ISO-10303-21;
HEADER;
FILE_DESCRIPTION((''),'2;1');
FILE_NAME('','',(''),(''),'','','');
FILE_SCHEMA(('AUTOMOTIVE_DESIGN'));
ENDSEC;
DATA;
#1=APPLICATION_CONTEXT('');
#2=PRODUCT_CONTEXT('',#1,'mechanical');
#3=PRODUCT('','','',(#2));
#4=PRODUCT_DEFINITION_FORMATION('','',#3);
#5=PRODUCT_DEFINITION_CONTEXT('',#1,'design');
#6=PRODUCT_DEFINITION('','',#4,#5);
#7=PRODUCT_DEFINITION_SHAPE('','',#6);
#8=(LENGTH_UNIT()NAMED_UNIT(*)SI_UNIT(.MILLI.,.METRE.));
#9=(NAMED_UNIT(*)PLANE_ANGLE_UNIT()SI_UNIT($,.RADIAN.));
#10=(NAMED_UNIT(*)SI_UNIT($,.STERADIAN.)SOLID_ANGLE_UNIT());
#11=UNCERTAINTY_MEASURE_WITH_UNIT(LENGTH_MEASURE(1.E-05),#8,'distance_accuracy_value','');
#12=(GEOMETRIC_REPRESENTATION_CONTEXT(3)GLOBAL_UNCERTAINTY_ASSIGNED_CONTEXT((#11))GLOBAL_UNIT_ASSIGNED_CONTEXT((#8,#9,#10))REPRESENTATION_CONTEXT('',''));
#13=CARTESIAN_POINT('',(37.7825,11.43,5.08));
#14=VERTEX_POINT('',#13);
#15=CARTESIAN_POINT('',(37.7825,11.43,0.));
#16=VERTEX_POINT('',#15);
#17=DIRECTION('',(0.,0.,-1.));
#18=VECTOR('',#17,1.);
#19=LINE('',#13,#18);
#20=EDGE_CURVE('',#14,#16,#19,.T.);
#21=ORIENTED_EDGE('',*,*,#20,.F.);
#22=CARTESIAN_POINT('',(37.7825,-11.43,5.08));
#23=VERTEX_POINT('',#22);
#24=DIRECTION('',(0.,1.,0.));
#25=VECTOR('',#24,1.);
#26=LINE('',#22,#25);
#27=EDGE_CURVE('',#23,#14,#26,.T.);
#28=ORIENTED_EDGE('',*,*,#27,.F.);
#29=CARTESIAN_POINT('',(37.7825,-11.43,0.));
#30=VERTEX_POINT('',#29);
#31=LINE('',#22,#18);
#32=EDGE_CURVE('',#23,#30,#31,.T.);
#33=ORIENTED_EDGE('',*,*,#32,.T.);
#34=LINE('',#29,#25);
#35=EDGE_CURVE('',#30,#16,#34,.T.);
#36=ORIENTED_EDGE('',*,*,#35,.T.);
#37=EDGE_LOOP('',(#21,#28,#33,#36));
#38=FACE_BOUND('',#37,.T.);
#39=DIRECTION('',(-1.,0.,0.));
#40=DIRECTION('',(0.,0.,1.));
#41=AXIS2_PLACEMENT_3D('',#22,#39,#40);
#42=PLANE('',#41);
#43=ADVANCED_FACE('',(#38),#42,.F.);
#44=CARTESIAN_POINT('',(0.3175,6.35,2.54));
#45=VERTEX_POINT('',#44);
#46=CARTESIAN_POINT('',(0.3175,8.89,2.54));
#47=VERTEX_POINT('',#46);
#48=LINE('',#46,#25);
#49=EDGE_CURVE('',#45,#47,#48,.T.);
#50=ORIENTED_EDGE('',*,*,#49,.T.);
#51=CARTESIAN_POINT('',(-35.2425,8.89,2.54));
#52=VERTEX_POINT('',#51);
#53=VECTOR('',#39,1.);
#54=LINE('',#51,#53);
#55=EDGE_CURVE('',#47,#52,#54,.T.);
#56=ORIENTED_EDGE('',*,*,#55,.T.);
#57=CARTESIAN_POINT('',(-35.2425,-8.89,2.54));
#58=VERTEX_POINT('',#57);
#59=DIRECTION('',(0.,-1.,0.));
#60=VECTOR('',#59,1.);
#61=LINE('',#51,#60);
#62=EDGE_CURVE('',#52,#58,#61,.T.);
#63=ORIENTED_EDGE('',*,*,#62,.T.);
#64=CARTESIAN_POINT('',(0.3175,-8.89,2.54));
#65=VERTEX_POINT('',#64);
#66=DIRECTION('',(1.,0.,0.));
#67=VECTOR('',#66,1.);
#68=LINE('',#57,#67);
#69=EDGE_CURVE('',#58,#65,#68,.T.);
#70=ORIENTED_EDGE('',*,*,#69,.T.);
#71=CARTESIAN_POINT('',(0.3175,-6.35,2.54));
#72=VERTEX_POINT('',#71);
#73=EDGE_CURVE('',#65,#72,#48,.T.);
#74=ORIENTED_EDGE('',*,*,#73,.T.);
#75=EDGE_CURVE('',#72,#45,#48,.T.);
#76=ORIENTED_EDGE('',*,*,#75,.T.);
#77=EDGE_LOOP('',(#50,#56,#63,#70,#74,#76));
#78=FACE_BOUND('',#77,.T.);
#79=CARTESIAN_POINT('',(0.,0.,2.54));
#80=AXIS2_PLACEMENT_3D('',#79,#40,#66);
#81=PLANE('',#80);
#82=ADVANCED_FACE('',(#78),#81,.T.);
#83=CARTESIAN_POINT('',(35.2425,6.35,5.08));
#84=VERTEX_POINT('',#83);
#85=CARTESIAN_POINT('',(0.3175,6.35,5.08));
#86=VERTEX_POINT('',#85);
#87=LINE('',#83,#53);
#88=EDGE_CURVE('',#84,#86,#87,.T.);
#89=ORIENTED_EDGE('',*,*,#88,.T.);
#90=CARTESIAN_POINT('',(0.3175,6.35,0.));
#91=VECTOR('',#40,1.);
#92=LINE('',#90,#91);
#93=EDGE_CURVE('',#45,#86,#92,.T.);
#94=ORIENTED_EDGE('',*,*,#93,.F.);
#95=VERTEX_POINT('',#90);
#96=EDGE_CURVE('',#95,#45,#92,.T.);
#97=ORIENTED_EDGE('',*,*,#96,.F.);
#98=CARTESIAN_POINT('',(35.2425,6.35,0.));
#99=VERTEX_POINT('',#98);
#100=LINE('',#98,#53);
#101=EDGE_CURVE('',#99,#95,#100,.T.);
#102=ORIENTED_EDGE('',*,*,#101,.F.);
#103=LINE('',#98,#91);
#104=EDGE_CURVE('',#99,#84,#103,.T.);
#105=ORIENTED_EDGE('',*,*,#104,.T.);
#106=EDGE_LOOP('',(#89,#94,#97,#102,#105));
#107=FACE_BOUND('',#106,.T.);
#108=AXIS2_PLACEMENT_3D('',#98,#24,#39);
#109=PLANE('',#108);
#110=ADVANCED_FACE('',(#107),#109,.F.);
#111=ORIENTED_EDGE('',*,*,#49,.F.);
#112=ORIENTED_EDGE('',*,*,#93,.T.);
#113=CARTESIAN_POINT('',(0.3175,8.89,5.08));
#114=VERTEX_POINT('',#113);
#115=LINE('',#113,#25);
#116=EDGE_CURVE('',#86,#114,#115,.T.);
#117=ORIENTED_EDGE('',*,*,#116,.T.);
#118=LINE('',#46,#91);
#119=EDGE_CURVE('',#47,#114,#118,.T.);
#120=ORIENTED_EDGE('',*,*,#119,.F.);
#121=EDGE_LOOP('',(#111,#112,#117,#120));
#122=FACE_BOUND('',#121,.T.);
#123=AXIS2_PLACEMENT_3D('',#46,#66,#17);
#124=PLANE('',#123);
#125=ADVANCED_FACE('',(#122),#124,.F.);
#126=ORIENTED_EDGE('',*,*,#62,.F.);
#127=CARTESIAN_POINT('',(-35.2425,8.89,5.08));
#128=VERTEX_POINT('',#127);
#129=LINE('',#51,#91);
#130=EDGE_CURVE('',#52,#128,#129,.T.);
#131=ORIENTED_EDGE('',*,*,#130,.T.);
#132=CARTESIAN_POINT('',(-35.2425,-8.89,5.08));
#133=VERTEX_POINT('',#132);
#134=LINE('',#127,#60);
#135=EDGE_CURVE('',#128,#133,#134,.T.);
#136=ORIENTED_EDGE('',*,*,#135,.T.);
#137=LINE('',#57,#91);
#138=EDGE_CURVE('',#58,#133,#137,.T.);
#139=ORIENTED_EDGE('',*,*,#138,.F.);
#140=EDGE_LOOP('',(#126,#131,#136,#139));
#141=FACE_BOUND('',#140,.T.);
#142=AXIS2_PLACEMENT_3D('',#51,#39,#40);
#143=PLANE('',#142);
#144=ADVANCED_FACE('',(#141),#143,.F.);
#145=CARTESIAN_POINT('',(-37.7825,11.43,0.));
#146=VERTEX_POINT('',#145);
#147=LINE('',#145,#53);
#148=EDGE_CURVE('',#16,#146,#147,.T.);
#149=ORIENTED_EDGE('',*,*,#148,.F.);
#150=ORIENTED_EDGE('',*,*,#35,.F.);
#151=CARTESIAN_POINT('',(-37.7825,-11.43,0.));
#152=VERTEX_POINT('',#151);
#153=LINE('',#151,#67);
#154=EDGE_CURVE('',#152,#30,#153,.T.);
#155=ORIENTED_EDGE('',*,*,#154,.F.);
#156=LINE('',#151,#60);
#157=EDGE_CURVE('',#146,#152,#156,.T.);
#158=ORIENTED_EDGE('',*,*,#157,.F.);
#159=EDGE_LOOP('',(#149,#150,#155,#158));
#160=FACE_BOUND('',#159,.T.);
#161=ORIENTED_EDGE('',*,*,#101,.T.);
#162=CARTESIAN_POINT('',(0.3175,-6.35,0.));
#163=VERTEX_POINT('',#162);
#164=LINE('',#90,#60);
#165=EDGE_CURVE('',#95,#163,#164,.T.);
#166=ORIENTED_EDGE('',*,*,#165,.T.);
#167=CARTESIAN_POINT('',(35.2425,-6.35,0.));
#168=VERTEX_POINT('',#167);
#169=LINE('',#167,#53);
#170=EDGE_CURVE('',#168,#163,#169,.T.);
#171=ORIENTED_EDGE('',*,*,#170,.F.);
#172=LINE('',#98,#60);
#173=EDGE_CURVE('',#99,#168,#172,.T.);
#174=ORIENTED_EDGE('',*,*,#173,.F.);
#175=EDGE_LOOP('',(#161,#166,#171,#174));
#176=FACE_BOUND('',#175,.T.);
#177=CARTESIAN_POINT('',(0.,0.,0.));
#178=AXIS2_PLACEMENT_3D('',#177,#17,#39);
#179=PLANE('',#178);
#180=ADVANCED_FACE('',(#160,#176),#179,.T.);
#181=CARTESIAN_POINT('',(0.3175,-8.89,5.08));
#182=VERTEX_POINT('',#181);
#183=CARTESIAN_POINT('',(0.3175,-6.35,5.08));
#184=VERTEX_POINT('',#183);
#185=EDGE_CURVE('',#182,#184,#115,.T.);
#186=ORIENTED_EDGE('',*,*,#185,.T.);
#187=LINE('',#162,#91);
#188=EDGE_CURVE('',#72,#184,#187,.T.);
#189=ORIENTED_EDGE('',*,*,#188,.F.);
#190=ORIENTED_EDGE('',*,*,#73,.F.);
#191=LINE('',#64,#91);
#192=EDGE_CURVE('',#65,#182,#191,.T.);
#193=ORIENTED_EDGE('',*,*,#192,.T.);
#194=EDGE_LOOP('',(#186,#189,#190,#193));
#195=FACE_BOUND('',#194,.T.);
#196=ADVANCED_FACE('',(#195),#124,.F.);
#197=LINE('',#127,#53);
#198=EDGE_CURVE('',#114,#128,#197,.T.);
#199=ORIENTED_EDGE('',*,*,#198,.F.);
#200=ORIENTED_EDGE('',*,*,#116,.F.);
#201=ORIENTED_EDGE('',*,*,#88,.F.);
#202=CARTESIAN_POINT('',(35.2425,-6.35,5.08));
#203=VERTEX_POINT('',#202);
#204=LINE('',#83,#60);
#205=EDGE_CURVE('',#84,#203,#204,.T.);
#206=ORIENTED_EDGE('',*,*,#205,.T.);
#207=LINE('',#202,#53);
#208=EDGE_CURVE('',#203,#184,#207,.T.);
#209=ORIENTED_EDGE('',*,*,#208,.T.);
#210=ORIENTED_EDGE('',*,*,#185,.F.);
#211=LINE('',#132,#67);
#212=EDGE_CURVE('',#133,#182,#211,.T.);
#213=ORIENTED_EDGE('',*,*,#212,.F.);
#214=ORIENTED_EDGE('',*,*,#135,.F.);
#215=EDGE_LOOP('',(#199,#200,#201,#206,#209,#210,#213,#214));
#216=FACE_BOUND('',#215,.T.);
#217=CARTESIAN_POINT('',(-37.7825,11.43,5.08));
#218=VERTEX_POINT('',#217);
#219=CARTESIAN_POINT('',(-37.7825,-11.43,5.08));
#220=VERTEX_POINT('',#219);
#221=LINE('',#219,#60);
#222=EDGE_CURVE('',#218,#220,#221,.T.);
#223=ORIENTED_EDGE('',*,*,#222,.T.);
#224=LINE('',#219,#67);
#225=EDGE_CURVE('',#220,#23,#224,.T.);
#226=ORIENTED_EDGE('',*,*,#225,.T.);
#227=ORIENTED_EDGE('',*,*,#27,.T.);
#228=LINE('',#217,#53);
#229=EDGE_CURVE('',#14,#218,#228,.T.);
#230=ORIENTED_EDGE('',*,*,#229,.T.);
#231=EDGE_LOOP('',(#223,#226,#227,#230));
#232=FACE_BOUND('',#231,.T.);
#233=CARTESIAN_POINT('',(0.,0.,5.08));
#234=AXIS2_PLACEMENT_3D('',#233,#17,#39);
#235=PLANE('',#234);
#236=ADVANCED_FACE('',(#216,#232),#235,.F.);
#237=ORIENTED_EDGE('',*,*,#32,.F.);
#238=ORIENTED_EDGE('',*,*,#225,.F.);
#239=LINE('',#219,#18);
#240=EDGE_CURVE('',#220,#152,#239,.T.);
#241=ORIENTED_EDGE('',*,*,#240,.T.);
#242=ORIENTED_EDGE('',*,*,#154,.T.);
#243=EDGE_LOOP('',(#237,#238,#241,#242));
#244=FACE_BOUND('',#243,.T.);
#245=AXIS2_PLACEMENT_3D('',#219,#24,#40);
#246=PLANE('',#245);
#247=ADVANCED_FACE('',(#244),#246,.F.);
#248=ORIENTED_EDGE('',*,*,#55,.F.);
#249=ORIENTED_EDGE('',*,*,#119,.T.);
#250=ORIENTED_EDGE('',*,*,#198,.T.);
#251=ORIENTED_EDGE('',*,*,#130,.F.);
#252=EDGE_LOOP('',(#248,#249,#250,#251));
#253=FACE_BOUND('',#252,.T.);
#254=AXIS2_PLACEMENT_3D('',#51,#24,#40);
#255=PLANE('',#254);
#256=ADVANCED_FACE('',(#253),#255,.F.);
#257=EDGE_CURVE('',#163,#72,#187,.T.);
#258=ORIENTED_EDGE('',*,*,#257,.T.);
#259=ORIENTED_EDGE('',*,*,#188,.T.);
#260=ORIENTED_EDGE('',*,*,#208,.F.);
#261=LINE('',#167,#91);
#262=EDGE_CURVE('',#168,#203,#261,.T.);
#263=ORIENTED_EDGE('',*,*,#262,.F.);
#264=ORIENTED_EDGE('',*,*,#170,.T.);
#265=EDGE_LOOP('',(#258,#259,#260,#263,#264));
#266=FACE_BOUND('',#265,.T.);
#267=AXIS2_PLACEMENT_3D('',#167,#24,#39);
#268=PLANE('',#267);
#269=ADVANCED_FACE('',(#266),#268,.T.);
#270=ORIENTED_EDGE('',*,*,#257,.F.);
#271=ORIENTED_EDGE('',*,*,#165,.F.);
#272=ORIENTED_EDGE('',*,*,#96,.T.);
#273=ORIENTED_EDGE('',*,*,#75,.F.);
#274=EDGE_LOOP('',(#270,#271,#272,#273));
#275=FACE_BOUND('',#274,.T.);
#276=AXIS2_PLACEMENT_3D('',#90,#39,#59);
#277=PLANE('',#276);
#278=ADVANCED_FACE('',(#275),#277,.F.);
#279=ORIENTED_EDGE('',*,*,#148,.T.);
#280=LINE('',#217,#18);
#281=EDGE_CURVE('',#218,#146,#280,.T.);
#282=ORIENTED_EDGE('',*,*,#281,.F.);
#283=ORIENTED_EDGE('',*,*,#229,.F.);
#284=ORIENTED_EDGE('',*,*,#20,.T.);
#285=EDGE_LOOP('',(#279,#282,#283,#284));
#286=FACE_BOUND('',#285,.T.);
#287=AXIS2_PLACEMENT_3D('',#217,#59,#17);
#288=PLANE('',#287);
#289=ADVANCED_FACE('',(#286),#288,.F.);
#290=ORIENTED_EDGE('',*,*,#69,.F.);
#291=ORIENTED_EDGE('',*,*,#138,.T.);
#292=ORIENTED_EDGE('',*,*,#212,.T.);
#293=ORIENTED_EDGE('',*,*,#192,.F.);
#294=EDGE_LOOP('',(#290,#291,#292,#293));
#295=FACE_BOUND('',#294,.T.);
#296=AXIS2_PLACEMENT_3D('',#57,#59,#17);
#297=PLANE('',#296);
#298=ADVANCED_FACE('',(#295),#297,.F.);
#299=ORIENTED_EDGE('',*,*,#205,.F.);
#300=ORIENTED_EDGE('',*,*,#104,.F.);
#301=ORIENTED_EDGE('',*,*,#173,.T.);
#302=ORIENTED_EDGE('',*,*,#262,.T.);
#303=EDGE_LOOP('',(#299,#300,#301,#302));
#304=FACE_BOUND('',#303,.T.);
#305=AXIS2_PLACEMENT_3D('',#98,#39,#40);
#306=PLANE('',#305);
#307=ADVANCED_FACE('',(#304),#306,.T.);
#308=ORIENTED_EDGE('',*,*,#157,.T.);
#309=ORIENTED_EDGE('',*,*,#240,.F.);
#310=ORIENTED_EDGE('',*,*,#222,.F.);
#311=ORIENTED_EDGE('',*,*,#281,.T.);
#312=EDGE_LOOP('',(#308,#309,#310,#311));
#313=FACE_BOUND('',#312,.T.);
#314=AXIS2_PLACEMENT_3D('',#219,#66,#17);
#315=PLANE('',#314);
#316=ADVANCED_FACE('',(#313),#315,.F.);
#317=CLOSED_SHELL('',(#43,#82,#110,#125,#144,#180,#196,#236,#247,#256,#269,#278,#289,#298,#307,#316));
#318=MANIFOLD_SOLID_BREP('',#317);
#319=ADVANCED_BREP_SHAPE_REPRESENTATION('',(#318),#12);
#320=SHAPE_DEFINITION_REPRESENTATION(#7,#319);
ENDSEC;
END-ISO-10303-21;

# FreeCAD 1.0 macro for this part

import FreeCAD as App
import Part
import Sketcher
from FreeCAD import Vector
Q = App.Units.Quantity


def add_polygon(sketch, points):
    """Adds a closed chain of lines whose ends are joined by coincident constraints."""
    first, n = sketch.GeometryCount, len(points)
    for a, b in zip(points, points[1:] + points[:1]):
        sketch.addGeometry(Part.LineSegment(App.Vector(*a, 0), App.Vector(*b, 0)), False)
    for i in range(n):
        sketch.addConstraint(Sketcher.Constraint("Coincident", first + i, 2, first + (i + 1) % n, 1))

doc = App.newDocument("Part")
body = doc.addObject("PartDesign::Body", "Body")

# Sketch on XY plane
sketch1 = body.newObject("Sketcher::SketchObject", "Sketch")
sketch1.AttachmentSupport = (doc.getObject("XY_Plane"), [""])
sketch1.MapMode = "FlatFace"
add_polygon(sketch1, [(-38, 11), (-38, -11), (38, -11), (38, 11)])  # lines 0-3
sketch1.addConstraint(Sketcher.Constraint("Vertical", 0))
sketch1.addConstraint(Sketcher.Constraint("Horizontal", 1))
sketch1.addConstraint(Sketcher.Constraint("Vertical", 2))
sketch1.addConstraint(Sketcher.Constraint("Horizontal", 3))
sketch1.addConstraint(Sketcher.Constraint("Symmetric", 0, 2, 2, 2, -1, 1))
sketch1.addConstraint(Sketcher.Constraint("DistanceY", 0, 2, 0, 1, Q("0.9 in")))
sketch1.addConstraint(Sketcher.Constraint("DistanceX", 1, 1, 1, 2, Q("2.975 in")))
pad1 = body.newObject("PartDesign::Pad", "Pad")
pad1.Profile = sketch1
pad1.Length = Q("0.2 in")

# Sketch on XY plane
sketch2 = body.newObject("Sketcher::SketchObject", "Sketch001")
sketch2.AttachmentSupport = (doc.getObject("XY_Plane"), [""])
sketch2.MapMode = "FlatFace"
sketch2.AttachmentOffset = App.Placement(Vector(0, 0, 0.2 * 25.4), App.Rotation())
add_polygon(sketch2, [(-35, 9), (-35, -9), (0, -9), (0, 9)])  # lines 0-3
sketch2.addConstraint(Sketcher.Constraint("Vertical", 0))
sketch2.addConstraint(Sketcher.Constraint("Horizontal", 1))
sketch2.addConstraint(Sketcher.Constraint("Vertical", 2))
sketch2.addConstraint(Sketcher.Constraint("Horizontal", 3))
sketch2.addConstraint(Sketcher.Constraint("DistanceX", 1, 1, 1, 2, Q("1.4 in")))
sketch2.addConstraint(Sketcher.Constraint("DistanceY", 0, 2, 0, 1, Q("0.7 in")))
sketch2.addConstraint(Sketcher.Constraint("DistanceY", 0, 2, -1, 1, Q("0.35 in")))
sketch2.addConstraint(Sketcher.Constraint("DistanceX", 0, 2, -1, 1, Q("1.3875 in")))
pocket1 = body.newObject("PartDesign::Pocket", "Pocket")
pocket1.Profile = sketch2
pocket1.Length = Q("0.1 in")

# Sketch on XY plane
sketch3 = body.newObject("Sketcher::SketchObject", "Sketch002")
sketch3.AttachmentSupport = (doc.getObject("XY_Plane"), [""])
sketch3.MapMode = "FlatFace"
sketch3.AttachmentOffset = App.Placement(Vector(0, 0, 0.2 * 25.4), App.Rotation())
add_polygon(sketch3, [(0, 6), (0, -6), (35, -6), (35, 6)])  # lines 0-3
sketch3.addConstraint(Sketcher.Constraint("Vertical", 0))
sketch3.addConstraint(Sketcher.Constraint("Horizontal", 1))
sketch3.addConstraint(Sketcher.Constraint("Vertical", 2))
sketch3.addConstraint(Sketcher.Constraint("Horizontal", 3))
sketch3.addConstraint(Sketcher.Constraint("DistanceY", 0, 2, 0, 1, Q("0.5 in")))
sketch3.addConstraint(Sketcher.Constraint("DistanceX", 1, 1, 1, 2, Q("1.375 in")))
sketch3.addConstraint(Sketcher.Constraint("DistanceY", 0, 2, -1, 1, Q("0.25 in")))
sketch3.addConstraint(Sketcher.Constraint("DistanceX", -1, 1, 0, 2, Q("0.0125 in")))
pocket2 = body.newObject("PartDesign::Pocket", "Pocket001")
pocket2.Profile = sketch3
pocket2.Type = "ThroughAll"

doc.recompute()
